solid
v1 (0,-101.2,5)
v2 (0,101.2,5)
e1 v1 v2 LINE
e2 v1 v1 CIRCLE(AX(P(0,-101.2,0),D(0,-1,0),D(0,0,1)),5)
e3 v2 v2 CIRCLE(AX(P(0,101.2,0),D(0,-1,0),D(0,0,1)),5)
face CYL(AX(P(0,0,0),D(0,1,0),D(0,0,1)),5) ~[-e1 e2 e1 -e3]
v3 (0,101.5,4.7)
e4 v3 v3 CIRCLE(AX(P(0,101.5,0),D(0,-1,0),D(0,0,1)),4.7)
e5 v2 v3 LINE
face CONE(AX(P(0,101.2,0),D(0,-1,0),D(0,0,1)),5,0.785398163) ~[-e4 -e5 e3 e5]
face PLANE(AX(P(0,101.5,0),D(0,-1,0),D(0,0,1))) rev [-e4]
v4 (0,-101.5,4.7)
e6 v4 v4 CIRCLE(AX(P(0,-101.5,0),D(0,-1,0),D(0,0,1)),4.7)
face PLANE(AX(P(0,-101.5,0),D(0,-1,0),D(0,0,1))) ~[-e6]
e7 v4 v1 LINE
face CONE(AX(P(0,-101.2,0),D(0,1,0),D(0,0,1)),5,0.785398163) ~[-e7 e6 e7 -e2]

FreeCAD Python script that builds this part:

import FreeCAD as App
import Part
import Sketcher

V = App.Vector


def edges_at(feature, points):
    """Names of the edges that pass closest to the given points."""
    edges = feature.Shape.Edges
    near = lambda p: min(range(len(edges)), key=lambda i: edges[i].distToShape(Part.Vertex(*p))[0])
    return sorted({f"Edge{near(p) + 1}" for p in points})


def add_polygon(sketch, points):
    """Adds a closed chain of lines whose ends are joined by coincident constraints."""
    first, n = sketch.GeometryCount, len(points)
    for a, b in zip(points, points[1:] + points[:1]):
        sketch.addGeometry(Part.LineSegment(App.Vector(*a, 0), App.Vector(*b, 0)), False)
    for i in range(n):
        sketch.addConstraint(Sketcher.Constraint("Coincident", first + i, 2, first + (i + 1) % n, 1))

doc = App.newDocument("Part")
params = doc.addObject("Spreadsheet::Sheet", "Params")
for row, (alias, value) in enumerate([
    ("sketch1_width", "5 mm"),
    ("sketch1_height", "203 mm"),
    ("revolution_angle", "360 deg"),
    ("chamfer_size", "0.3 mm"),
], start=1):
    params.set(f"A{row}", alias)
    params.set(f"B{row}", "=" + value)
    params.setAlias(f"B{row}", alias)

body = doc.addObject("PartDesign::Body", "Body")

sketch1 = body.newObject("Sketcher::SketchObject", "Sketch")
sketch1.AttachmentSupport = (doc.getObject("XY_Plane"), [""])
sketch1.MapMode = "FlatFace"
add_polygon(sketch1, [(0, 102), (0, -102), (5, -102), (5, 102)])
sketch1.addConstraint([
    Sketcher.Constraint("Vertical", 0),
    Sketcher.Constraint("Horizontal", 1),
    Sketcher.Constraint("Vertical", 2),
    Sketcher.Constraint("Horizontal", 3),
    Sketcher.Constraint("Symmetric", 0, 2, 3, 2, -1, 1),
    Sketcher.Constraint("DistanceX", 1, 1, 1, 2, 5.0),
    Sketcher.Constraint("DistanceY", 0, 2, 0, 1, 203.0),
])
sketch1.setExpression("Constraints[9]", "Params.sketch1_width")
sketch1.setExpression("Constraints[10]", "Params.sketch1_height")
revolution = body.newObject("PartDesign::Revolution", "Revolution")
revolution.Profile = sketch1
revolution.ReferenceAxis = (sketch1, ["V_Axis"])
revolution.setExpression("Angle", "Params.revolution_angle")
doc.recompute()

chamfer = body.newObject("PartDesign::Chamfer", "Chamfer")
chamfer.Base = (revolution, edges_at(revolution, [(0, 101.5, -5), (0, -101.5, -5)]))
chamfer.setExpression("Size", "Params.chamfer_size")

doc.recompute()
